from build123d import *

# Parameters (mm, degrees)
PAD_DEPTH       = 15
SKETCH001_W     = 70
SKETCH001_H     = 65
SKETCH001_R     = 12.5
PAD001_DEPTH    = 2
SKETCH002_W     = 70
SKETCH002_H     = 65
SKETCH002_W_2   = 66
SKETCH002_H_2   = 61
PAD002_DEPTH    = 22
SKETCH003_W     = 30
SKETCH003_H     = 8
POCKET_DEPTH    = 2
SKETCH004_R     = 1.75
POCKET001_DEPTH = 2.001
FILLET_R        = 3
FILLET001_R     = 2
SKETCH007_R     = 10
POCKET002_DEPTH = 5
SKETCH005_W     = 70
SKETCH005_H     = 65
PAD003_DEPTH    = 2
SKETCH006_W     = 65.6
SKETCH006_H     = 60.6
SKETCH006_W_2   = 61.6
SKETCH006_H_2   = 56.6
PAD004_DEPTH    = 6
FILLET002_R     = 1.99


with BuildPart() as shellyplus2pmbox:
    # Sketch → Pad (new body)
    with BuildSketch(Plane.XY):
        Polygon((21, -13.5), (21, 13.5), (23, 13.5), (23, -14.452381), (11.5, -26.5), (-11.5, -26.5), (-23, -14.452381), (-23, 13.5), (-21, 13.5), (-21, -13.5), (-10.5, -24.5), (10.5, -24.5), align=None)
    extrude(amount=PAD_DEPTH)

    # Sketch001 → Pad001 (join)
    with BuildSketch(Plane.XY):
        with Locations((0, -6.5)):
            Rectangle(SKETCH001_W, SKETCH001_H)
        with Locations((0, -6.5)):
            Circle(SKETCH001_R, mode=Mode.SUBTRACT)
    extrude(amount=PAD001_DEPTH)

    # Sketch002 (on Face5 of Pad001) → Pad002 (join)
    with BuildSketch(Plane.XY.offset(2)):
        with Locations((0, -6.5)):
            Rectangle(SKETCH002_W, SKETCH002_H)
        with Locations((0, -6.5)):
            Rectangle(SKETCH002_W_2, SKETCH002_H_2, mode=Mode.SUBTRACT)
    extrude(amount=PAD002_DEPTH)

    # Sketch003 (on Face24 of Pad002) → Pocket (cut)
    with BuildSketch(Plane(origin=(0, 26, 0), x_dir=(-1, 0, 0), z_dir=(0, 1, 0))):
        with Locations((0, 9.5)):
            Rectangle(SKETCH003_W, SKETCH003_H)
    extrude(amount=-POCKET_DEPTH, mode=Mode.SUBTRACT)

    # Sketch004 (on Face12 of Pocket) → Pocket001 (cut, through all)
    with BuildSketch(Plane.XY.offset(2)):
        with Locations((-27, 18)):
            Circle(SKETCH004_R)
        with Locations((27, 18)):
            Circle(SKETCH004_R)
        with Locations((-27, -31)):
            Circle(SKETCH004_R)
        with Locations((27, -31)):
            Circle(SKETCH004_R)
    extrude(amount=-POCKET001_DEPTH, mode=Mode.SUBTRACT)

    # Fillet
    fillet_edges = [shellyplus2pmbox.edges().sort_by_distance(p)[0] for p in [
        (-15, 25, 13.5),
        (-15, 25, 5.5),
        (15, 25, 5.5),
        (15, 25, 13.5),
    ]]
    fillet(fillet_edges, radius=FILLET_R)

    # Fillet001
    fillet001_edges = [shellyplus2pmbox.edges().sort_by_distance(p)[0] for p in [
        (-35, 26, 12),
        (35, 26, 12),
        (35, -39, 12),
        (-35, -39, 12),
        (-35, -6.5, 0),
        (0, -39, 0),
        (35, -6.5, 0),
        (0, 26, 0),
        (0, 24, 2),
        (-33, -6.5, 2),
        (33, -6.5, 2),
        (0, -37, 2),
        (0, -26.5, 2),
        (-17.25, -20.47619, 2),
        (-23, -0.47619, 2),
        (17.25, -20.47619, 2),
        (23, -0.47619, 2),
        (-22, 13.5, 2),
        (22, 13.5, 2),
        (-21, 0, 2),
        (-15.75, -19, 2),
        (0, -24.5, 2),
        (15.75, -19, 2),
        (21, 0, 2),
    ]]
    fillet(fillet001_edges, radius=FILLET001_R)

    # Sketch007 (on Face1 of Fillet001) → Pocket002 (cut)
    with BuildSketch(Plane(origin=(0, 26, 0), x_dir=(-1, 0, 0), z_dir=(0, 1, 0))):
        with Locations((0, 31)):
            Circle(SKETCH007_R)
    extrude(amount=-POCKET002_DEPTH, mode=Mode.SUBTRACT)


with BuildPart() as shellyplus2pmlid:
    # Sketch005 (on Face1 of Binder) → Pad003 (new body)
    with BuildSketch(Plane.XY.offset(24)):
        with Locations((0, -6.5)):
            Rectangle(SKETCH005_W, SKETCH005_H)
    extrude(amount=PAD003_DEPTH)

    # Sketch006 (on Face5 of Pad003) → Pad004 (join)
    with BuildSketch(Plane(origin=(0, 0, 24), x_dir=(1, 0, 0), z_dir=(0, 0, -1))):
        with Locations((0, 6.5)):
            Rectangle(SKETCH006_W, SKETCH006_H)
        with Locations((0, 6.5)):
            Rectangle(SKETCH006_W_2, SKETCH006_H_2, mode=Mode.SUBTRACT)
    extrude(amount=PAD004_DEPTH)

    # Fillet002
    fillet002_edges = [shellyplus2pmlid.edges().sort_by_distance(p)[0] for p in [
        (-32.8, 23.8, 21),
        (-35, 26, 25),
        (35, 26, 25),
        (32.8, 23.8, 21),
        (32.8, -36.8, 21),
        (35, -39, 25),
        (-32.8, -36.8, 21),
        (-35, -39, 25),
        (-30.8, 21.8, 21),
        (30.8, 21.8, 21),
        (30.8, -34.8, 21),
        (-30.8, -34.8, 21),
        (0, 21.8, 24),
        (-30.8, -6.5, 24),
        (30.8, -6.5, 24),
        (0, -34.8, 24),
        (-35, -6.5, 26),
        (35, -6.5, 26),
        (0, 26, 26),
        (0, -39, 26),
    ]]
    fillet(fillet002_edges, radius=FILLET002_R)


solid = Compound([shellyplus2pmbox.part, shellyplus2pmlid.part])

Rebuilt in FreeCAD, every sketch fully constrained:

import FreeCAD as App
import Part
import Sketcher

V = App.Vector
Q = App.Units.Quantity


def edges_at(feature, points):
    """Names of the edges that pass closest to the given points."""
    edges = feature.Shape.Edges
    near = lambda p: min(range(len(edges)), key=lambda i: edges[i].distToShape(Part.Vertex(*p))[0])
    return sorted({f"Edge{near(p) + 1}" for p in points})

doc = App.newDocument("Part")
body = doc.addObject("PartDesign::Body", "Body")

# Sketch on XY plane
sketch1 = body.newObject("Sketcher::SketchObject", "Sketch")
sketch1.AttachmentSupport = (doc.getObject("XY_Plane"), [""])
sketch1.MapMode = "FlatFace"
sketch1.addGeometry(Part.LineSegment(V(21, 13.5, 0), V(21, -13.5, 0)), False)
sketch1.addGeometry(Part.LineSegment(V(21, -13.5, 0), V(10.5, -24.5, 0)), False)
sketch1.addGeometry(Part.LineSegment(V(10.5, -24.5, 0), V(-10.5, -24.5, 0)), False)
sketch1.addGeometry(Part.LineSegment(V(-10.5, -24.5, 0), V(-21, -13.5, 0)), False)
sketch1.addGeometry(Part.LineSegment(V(-21, -13.5, 0), V(-21, 13.5, 0)), False)
sketch1.addGeometry(Part.LineSegment(V(-21, 13.5, 0), V(-23, 13.5, 0)), False)
sketch1.addGeometry(Part.LineSegment(V(-23, 13.5, 0), V(-23, -14.5, 0)), False)
sketch1.addGeometry(Part.LineSegment(V(-23, -14.5, 0), V(-11.5, -26.5, 0)), False)
sketch1.addGeometry(Part.LineSegment(V(-11.5, -26.5, 0), V(11.5, -26.5, 0)), False)
sketch1.addGeometry(Part.LineSegment(V(11.5, -26.5, 0), V(23, -14.5, 0)), False)
sketch1.addGeometry(Part.LineSegment(V(23, -14.5, 0), V(23, 13.5, 0)), False)
sketch1.addGeometry(Part.LineSegment(V(23, 13.5, 0), V(21, 13.5, 0)), False)
sketch1.addConstraint(Sketcher.Constraint("Coincident", 0, 2, 1, 1))
sketch1.addConstraint(Sketcher.Constraint("Coincident", 1, 2, 2, 1))
sketch1.addConstraint(Sketcher.Constraint("Coincident", 2, 2, 3, 1))
sketch1.addConstraint(Sketcher.Constraint("Coincident", 3, 2, 4, 1))
sketch1.addConstraint(Sketcher.Constraint("Coincident", 4, 2, 5, 1))
sketch1.addConstraint(Sketcher.Constraint("Coincident", 5, 2, 6, 1))
sketch1.addConstraint(Sketcher.Constraint("Coincident", 6, 2, 7, 1))
sketch1.addConstraint(Sketcher.Constraint("Coincident", 7, 2, 8, 1))
sketch1.addConstraint(Sketcher.Constraint("Coincident", 8, 2, 9, 1))
sketch1.addConstraint(Sketcher.Constraint("Coincident", 9, 2, 10, 1))
sketch1.addConstraint(Sketcher.Constraint("Coincident", 10, 2, 11, 1))
sketch1.addConstraint(Sketcher.Constraint("Coincident", 11, 2, 0, 1))
sketch1.addConstraint(Sketcher.Constraint("Vertical", 0))
sketch1.addConstraint(Sketcher.Constraint("Horizontal", 2))
sketch1.addConstraint(Sketcher.Constraint("Vertical", 4))
sketch1.addConstraint(Sketcher.Constraint("Horizontal", 5))
sketch1.addConstraint(Sketcher.Constraint("Vertical", 6))
sketch1.addConstraint(Sketcher.Constraint("Horizontal", 8))
sketch1.addConstraint(Sketcher.Constraint("Vertical", 10))
sketch1.addConstraint(Sketcher.Constraint("Horizontal", 11))
sketch1.addConstraint(Sketcher.Constraint("Symmetric", 0, 2, 4, 2, -1, 1))
sketch1.addConstraint(Sketcher.Constraint("Symmetric", 6, 2, 9, 2, -2))
sketch1.addConstraint(Sketcher.Constraint("Parallel", 3, 7))
sketch1.addConstraint(Sketcher.Constraint("Parallel", 1, 9))
sketch1.addConstraint(Sketcher.Constraint("Horizontal", 0, 2, 3, 2))
sketch1.addConstraint(Sketcher.Constraint("Horizontal", 5, 2, 10, 2))
sketch1.addConstraint(Sketcher.Constraint("Equal", 1, 3))
sketch1.addConstraint(Sketcher.Constraint("DistanceX", 2, 2, 2, 1, Q("21 mm")))
sketch1.addConstraint(Sketcher.Constraint("DistanceX", 5, 2, 5, 1, Q("2 mm")))
sketch1.addConstraint(Sketcher.Constraint("DistanceX", 8, 1, 8, 2, Q("23 mm")))
sketch1.addConstraint(Sketcher.Constraint("DistanceY", 0, 2, 0, 1, Q("27 mm")))
sketch1.addConstraint(Sketcher.Constraint("DistanceX", -1, 1, 0, 2, Q("21 mm")))
sketch1.addConstraint(Sketcher.Constraint("DistanceY", 1, 2, 0, 2, Q("11 mm")))
sketch1.addConstraint(Sketcher.Constraint("DistanceY", 7, 2, 2, 2, Q("2 mm")))
pad1 = body.newObject("PartDesign::Pad", "Pad")
pad1.Profile = sketch1
pad1.Length = 15

# Sketch on XY plane
sketch2 = body.newObject("Sketcher::SketchObject", "Sketch001")
sketch2.AttachmentSupport = (doc.getObject("XY_Plane"), [""])
sketch2.MapMode = "FlatFace"
sketch2.addGeometry(Part.LineSegment(V(-35, 26, 0), V(-35, -39, 0)), False)
sketch2.addGeometry(Part.LineSegment(V(-35, -39, 0), V(35, -39, 0)), False)
sketch2.addGeometry(Part.LineSegment(V(35, -39, 0), V(35, 26, 0)), False)
sketch2.addGeometry(Part.LineSegment(V(35, 26, 0), V(-35, 26, 0)), False)
sketch2.addGeometry(Part.Circle(V(0, -6, 0), V(0, 0, 1), 12), False)
sketch2.addConstraint(Sketcher.Constraint("Coincident", 0, 2, 1, 1))
sketch2.addConstraint(Sketcher.Constraint("Coincident", 1, 2, 2, 1))
sketch2.addConstraint(Sketcher.Constraint("Coincident", 2, 2, 3, 1))
sketch2.addConstraint(Sketcher.Constraint("Coincident", 3, 2, 0, 1))
sketch2.addConstraint(Sketcher.Constraint("Vertical", 0))
sketch2.addConstraint(Sketcher.Constraint("Horizontal", 1))
sketch2.addConstraint(Sketcher.Constraint("Vertical", 2))
sketch2.addConstraint(Sketcher.Constraint("Horizontal", 3))
sketch2.addConstraint(Sketcher.Constraint("PointOnObject", 4, 3, -2))
sketch2.addConstraint(Sketcher.Constraint("Diameter", 4, Q("25 mm")))
sketch2.addConstraint(Sketcher.Constraint("DistanceX", 1, 1, 1, 2, Q("70 mm")))
sketch2.addConstraint(Sketcher.Constraint("DistanceY", 0, 2, 0, 1, Q("65 mm")))
sketch2.addConstraint(Sketcher.Constraint("DistanceX", 0, 2, -1, 1, Q("35 mm")))
sketch2.addConstraint(Sketcher.Constraint("DistanceY", 0, 2, -1, 1, Q("39 mm")))
sketch2.addConstraint(Sketcher.Constraint("DistanceY", 4, 3, -1, 1, Q("6.5 mm")))
pad2 = body.newObject("PartDesign::Pad", "Pad001")
pad2.Profile = sketch2
pad2.Length = 2

# Sketch on XY plane
sketch3 = body.newObject("Sketcher::SketchObject", "Sketch002")
sketch3.AttachmentSupport = (doc.getObject("XY_Plane"), [""])
sketch3.MapMode = "FlatFace"
sketch3.AttachmentOffset = App.Placement(V(0, 0, 2), App.Rotation())
sketch3.addGeometry(Part.LineSegment(V(-35, 26, 0), V(-35, -39, 0)), False)
sketch3.addGeometry(Part.LineSegment(V(-35, -39, 0), V(35, -39, 0)), False)
sketch3.addGeometry(Part.LineSegment(V(35, -39, 0), V(35, 26, 0)), False)
sketch3.addGeometry(Part.LineSegment(V(35, 26, 0), V(-35, 26, 0)), False)
sketch3.addGeometry(Part.LineSegment(V(33, -37, 0), V(-33, -37, 0)), False)
sketch3.addGeometry(Part.LineSegment(V(-33, -37, 0), V(-33, 24, 0)), False)
sketch3.addGeometry(Part.LineSegment(V(-33, 24, 0), V(33, 24, 0)), False)
sketch3.addGeometry(Part.LineSegment(V(33, 24, 0), V(33, -37, 0)), False)
sketch3.addConstraint(Sketcher.Constraint("Coincident", 0, 2, 1, 1))
sketch3.addConstraint(Sketcher.Constraint("Coincident", 1, 2, 2, 1))
sketch3.addConstraint(Sketcher.Constraint("Coincident", 2, 2, 3, 1))
sketch3.addConstraint(Sketcher.Constraint("Coincident", 3, 2, 0, 1))
sketch3.addConstraint(Sketcher.Constraint("Coincident", 4, 2, 5, 1))
sketch3.addConstraint(Sketcher.Constraint("Coincident", 5, 2, 6, 1))
sketch3.addConstraint(Sketcher.Constraint("Coincident", 6, 2, 7, 1))
sketch3.addConstraint(Sketcher.Constraint("Coincident", 7, 2, 4, 1))
sketch3.addConstraint(Sketcher.Constraint("Vertical", 0))
sketch3.addConstraint(Sketcher.Constraint("Horizontal", 1))
sketch3.addConstraint(Sketcher.Constraint("Vertical", 2))
sketch3.addConstraint(Sketcher.Constraint("Horizontal", 3))
sketch3.addConstraint(Sketcher.Constraint("Horizontal", 4))
sketch3.addConstraint(Sketcher.Constraint("Vertical", 5))
sketch3.addConstraint(Sketcher.Constraint("Horizontal", 6))
sketch3.addConstraint(Sketcher.Constraint("Vertical", 7))
sketch3.addConstraint(Sketcher.Constraint("DistanceX", 1, 1, 1, 2, Q("70 mm")))
sketch3.addConstraint(Sketcher.Constraint("DistanceX", 4, 2, 4, 1, Q("66 mm")))
sketch3.addConstraint(Sketcher.Constraint("DistanceY", 0, 2, 0, 1, Q("65 mm")))
sketch3.addConstraint(Sketcher.Constraint("DistanceY", 5, 1, 5, 2, Q("61 mm")))
sketch3.addConstraint(Sketcher.Constraint("DistanceX", 0, 2, -1, 1, Q("35 mm")))
sketch3.addConstraint(Sketcher.Constraint("DistanceY", 0, 2, -1, 1, Q("39 mm")))
sketch3.addConstraint(Sketcher.Constraint("DistanceX", 4, 2, -1, 1, Q("33 mm")))
sketch3.addConstraint(Sketcher.Constraint("DistanceY", 4, 2, -1, 1, Q("37 mm")))
pad3 = body.newObject("PartDesign::Pad", "Pad002")
pad3.Profile = sketch3
pad3.Length = 22

# Sketch on XZ plane
sketch4 = body.newObject("Sketcher::SketchObject", "Sketch003")
sketch4.AttachmentSupport = (doc.getObject("XZ_Plane"), [""])
sketch4.MapMode = "FlatFace"
sketch4.AttachmentOffset = App.Placement(V(0, 0, -26), App.Rotation())
sketch4.addGeometry(Part.LineSegment(V(15, 14, 0), V(15, 6, 0)), False)
sketch4.addGeometry(Part.LineSegment(V(15, 6, 0), V(-15, 6, 0)), False)
sketch4.addGeometry(Part.LineSegment(V(-15, 6, 0), V(-15, 14, 0)), False)
sketch4.addGeometry(Part.LineSegment(V(-15, 14, 0), V(15, 14, 0)), False)
sketch4.addConstraint(Sketcher.Constraint("Coincident", 0, 2, 1, 1))
sketch4.addConstraint(Sketcher.Constraint("Coincident", 1, 2, 2, 1))
sketch4.addConstraint(Sketcher.Constraint("Coincident", 2, 2, 3, 1))
sketch4.addConstraint(Sketcher.Constraint("Coincident", 3, 2, 0, 1))
sketch4.addConstraint(Sketcher.Constraint("Vertical", 0))
sketch4.addConstraint(Sketcher.Constraint("Horizontal", 1))
sketch4.addConstraint(Sketcher.Constraint("Vertical", 2))
sketch4.addConstraint(Sketcher.Constraint("Horizontal", 3))
sketch4.addConstraint(Sketcher.Constraint("DistanceX", 1, 2, 1, 1, Q("30 mm")))
sketch4.addConstraint(Sketcher.Constraint("DistanceY", 0, 2, 0, 1, Q("8 mm")))
sketch4.addConstraint(Sketcher.Constraint("DistanceX", -1, 1, 0, 2, Q("15 mm")))
sketch4.addConstraint(Sketcher.Constraint("DistanceY", -1, 1, 0, 2, Q("5.5 mm")))
pocket1 = body.newObject("PartDesign::Pocket", "Pocket")
pocket1.Profile = sketch4
pocket1.Length = 2
pocket1.Reversed = True

# Sketch on XY plane
sketch5 = body.newObject("Sketcher::SketchObject", "Sketch004")
sketch5.AttachmentSupport = (doc.getObject("XY_Plane"), [""])
sketch5.MapMode = "FlatFace"
sketch5.AttachmentOffset = App.Placement(V(0, 0, 2), App.Rotation())
sketch5.addGeometry(Part.Circle(V(-27, 18, 0), V(0, 0, 1), 1.8), False)
sketch5.addGeometry(Part.Circle(V(27, 18, 0), V(0, 0, 1), 1.8), False)
sketch5.addGeometry(Part.Circle(V(-27, -31, 0), V(0, 0, 1), 1.8), False)
sketch5.addGeometry(Part.Circle(V(27, -31, 0), V(0, 0, 1), 1.8), False)
sketch5.addConstraint(Sketcher.Constraint("Equal", 0, 1))
sketch5.addConstraint(Sketcher.Constraint("Equal", 1, 2))
sketch5.addConstraint(Sketcher.Constraint("Equal", 2, 3))
sketch5.addConstraint(Sketcher.Constraint("Symmetric", 0, 3, 1, 3, -2))
sketch5.addConstraint(Sketcher.Constraint("Symmetric", 2, 3, 3, 3, -2))
sketch5.addConstraint(Sketcher.Constraint("Vertical", 0, 3, 2, 3))
sketch5.addConstraint(Sketcher.Constraint("Diameter", 0, Q("3.5 mm")))
sketch5.addConstraint(Sketcher.Constraint("DistanceX", 0, 3, -1, 1, Q("27 mm")))
sketch5.addConstraint(Sketcher.Constraint("DistanceY", -1, 1, 0, 3, Q("18 mm")))
sketch5.addConstraint(Sketcher.Constraint("DistanceY", 2, 3, -1, 1, Q("31 mm")))
pocket2 = body.newObject("PartDesign::Pocket", "Pocket001")
pocket2.Profile = sketch5
pocket2.Type = "ThroughAll"
doc.recompute()

fillet = body.newObject("PartDesign::Fillet", "Fillet")
fillet.Base = (pocket2, edges_at(pocket2, [
    (-15, 25, 13.5),
    (-15, 25, 5.5),
    (15, 25, 5.5),
    (15, 25, 13.5),
]))
fillet.Radius = 3
doc.recompute()

fillet2 = body.newObject("PartDesign::Fillet", "Fillet001")
fillet2.Base = (fillet, edges_at(fillet, [
    (-35, 26, 12),
    (35, 26, 12),
    (35, -39, 12),
    (-35, -39, 12),
    (-35, -6.5, 0),
    (0, -39, 0),
    (35, -6.5, 0),
    (0, 26, 0),
    (0, 24, 2),
    (-33, -6.5, 2),
    (33, -6.5, 2),
    (0, -37, 2),
    (0, -26.5, 2),
    (-17.25, -20.476, 2),
    (-23, -0.476, 2),
    (17.25, -20.476, 2),
    (23, -0.476, 2),
    (-22, 13.5, 2),
    (22, 13.5, 2),
    (-21, 0, 2),
    (-15.75, -19, 2),
    (0, -24.5, 2),
    (15.75, -19, 2),
    (21, 0, 2),
]))
fillet2.Radius = 2

# Sketch on XZ plane
sketch6 = body.newObject("Sketcher::SketchObject", "Sketch005")
sketch6.AttachmentSupport = (doc.getObject("XZ_Plane"), [""])
sketch6.MapMode = "FlatFace"
sketch6.AttachmentOffset = App.Placement(V(0, 0, -26), App.Rotation())
sketch6.addGeometry(Part.Circle(V(0, 31, 0), V(0, 0, 1), 10), False)
sketch6.addConstraint(Sketcher.Constraint("PointOnObject", 0, 3, -2))
sketch6.addConstraint(Sketcher.Constraint("Diameter", 0, Q("20 mm")))
sketch6.addConstraint(Sketcher.Constraint("DistanceY", -1, 1, 0, 3, Q("31 mm")))
pocket3 = body.newObject("PartDesign::Pocket", "Pocket002")
pocket3.Profile = sketch6
pocket3.Length = 5
pocket3.Reversed = True
body2 = doc.addObject("PartDesign::Body", "Body001")

# Sketch on XY plane
sketch7 = body2.newObject("Sketcher::SketchObject", "Sketch006")
sketch7.AttachmentSupport = (doc.getObject("XY_Plane001"), [""])
sketch7.MapMode = "FlatFace"
sketch7.AttachmentOffset = App.Placement(V(0, 0, 24), App.Rotation())
sketch7.addGeometry(Part.LineSegment(V(-35, 26, 0), V(-35, -39, 0)), False)
sketch7.addGeometry(Part.LineSegment(V(-35, -39, 0), V(35, -39, 0)), False)
sketch7.addGeometry(Part.LineSegment(V(35, -39, 0), V(35, 26, 0)), False)
sketch7.addGeometry(Part.LineSegment(V(35, 26, 0), V(-35, 26, 0)), False)
sketch7.addConstraint(Sketcher.Constraint("Coincident", 0, 2, 1, 1))
sketch7.addConstraint(Sketcher.Constraint("Coincident", 1, 2, 2, 1))
sketch7.addConstraint(Sketcher.Constraint("Coincident", 2, 2, 3, 1))
sketch7.addConstraint(Sketcher.Constraint("Coincident", 3, 2, 0, 1))
sketch7.addConstraint(Sketcher.Constraint("Vertical", 0))
sketch7.addConstraint(Sketcher.Constraint("Horizontal", 1))
sketch7.addConstraint(Sketcher.Constraint("Vertical", 2))
sketch7.addConstraint(Sketcher.Constraint("Horizontal", 3))
sketch7.addConstraint(Sketcher.Constraint("DistanceX", 1, 1, 1, 2, Q("70 mm")))
sketch7.addConstraint(Sketcher.Constraint("DistanceY", 0, 2, 0, 1, Q("65 mm")))
sketch7.addConstraint(Sketcher.Constraint("DistanceX", 0, 2, -1, 1, Q("35 mm")))
sketch7.addConstraint(Sketcher.Constraint("DistanceY", 0, 2, -1, 1, Q("39 mm")))
pad4 = body2.newObject("PartDesign::Pad", "Pad003")
pad4.Profile = sketch7
pad4.Length = 2

# Sketch on XY plane
sketch8 = body2.newObject("Sketcher::SketchObject", "Sketch007")
sketch8.AttachmentSupport = (doc.getObject("XY_Plane001"), [""])
sketch8.MapMode = "FlatFace"
sketch8.AttachmentOffset = App.Placement(V(0, 0, 24), App.Rotation())
sketch8.addGeometry(Part.LineSegment(V(-33, -37, 0), V(-33, 24, 0)), False)
sketch8.addGeometry(Part.LineSegment(V(-33, 24, 0), V(33, 24, 0)), False)
sketch8.addGeometry(Part.LineSegment(V(33, 24, 0), V(33, -37, 0)), False)
sketch8.addGeometry(Part.LineSegment(V(33, -37, 0), V(-33, -37, 0)), False)
sketch8.addGeometry(Part.LineSegment(V(31, 22, 0), V(-31, 22, 0)), False)
sketch8.addGeometry(Part.LineSegment(V(-31, 22, 0), V(-31, -35, 0)), False)
sketch8.addGeometry(Part.LineSegment(V(-31, -35, 0), V(31, -35, 0)), False)
sketch8.addGeometry(Part.LineSegment(V(31, -35, 0), V(31, 22, 0)), False)
sketch8.addConstraint(Sketcher.Constraint("Coincident", 0, 2, 1, 1))
sketch8.addConstraint(Sketcher.Constraint("Coincident", 1, 2, 2, 1))
sketch8.addConstraint(Sketcher.Constraint("Coincident", 2, 2, 3, 1))
sketch8.addConstraint(Sketcher.Constraint("Coincident", 3, 2, 0, 1))
sketch8.addConstraint(Sketcher.Constraint("Coincident", 4, 2, 5, 1))
sketch8.addConstraint(Sketcher.Constraint("Coincident", 5, 2, 6, 1))
sketch8.addConstraint(Sketcher.Constraint("Coincident", 6, 2, 7, 1))
sketch8.addConstraint(Sketcher.Constraint("Coincident", 7, 2, 4, 1))
sketch8.addConstraint(Sketcher.Constraint("Vertical", 0))
sketch8.addConstraint(Sketcher.Constraint("Horizontal", 1))
sketch8.addConstraint(Sketcher.Constraint("Vertical", 2))
sketch8.addConstraint(Sketcher.Constraint("Horizontal", 3))
sketch8.addConstraint(Sketcher.Constraint("Horizontal", 4))
sketch8.addConstraint(Sketcher.Constraint("Vertical", 5))
sketch8.addConstraint(Sketcher.Constraint("Horizontal", 6))
sketch8.addConstraint(Sketcher.Constraint("Vertical", 7))
sketch8.addConstraint(Sketcher.Constraint("DistanceX", 1, 1, 1, 2, Q("65.6 mm")))
sketch8.addConstraint(Sketcher.Constraint("DistanceX", 4, 2, 4, 1, Q("61.6 mm")))
sketch8.addConstraint(Sketcher.Constraint("DistanceY", 0, 1, 0, 2, Q("60.6 mm")))
sketch8.addConstraint(Sketcher.Constraint("DistanceY", 5, 2, 5, 1, Q("56.6 mm")))
sketch8.addConstraint(Sketcher.Constraint("DistanceX", 0, 2, 4, 2, Q("2 mm")))
sketch8.addConstraint(Sketcher.Constraint("DistanceY", 4, 2, 0, 2, Q("2 mm")))
sketch8.addConstraint(Sketcher.Constraint("DistanceX", 0, 2, -1, 1, Q("32.8 mm")))
sketch8.addConstraint(Sketcher.Constraint("DistanceY", -1, 1, 0, 2, Q("23.8 mm")))
pad5 = body2.newObject("PartDesign::Pad", "Pad004")
pad5.Profile = sketch8
pad5.Length = 6
pad5.Reversed = True
doc.recompute()

fillet3 = body2.newObject("PartDesign::Fillet", "Fillet002")
fillet3.Base = (pad5, edges_at(pad5, [
    (-32.8, 23.8, 21),
    (-35, 26, 25),
    (35, 26, 25),
    (32.8, 23.8, 21),
    (32.8, -36.8, 21),
    (35, -39, 25),
    (-32.8, -36.8, 21),
    (-35, -39, 25),
    (-30.8, 21.8, 21),
    (30.8, 21.8, 21),
    (30.8, -34.8, 21),
    (-30.8, -34.8, 21),
    (0, 21.8, 24),
    (-30.8, -6.5, 24),
    (30.8, -6.5, 24),
    (0, -34.8, 24),
    (-35, -6.5, 26),
    (35, -6.5, 26),
    (0, 26, 26),
    (0, -39, 26),
]))
fillet3.Radius = 1.99

doc.recompute()
